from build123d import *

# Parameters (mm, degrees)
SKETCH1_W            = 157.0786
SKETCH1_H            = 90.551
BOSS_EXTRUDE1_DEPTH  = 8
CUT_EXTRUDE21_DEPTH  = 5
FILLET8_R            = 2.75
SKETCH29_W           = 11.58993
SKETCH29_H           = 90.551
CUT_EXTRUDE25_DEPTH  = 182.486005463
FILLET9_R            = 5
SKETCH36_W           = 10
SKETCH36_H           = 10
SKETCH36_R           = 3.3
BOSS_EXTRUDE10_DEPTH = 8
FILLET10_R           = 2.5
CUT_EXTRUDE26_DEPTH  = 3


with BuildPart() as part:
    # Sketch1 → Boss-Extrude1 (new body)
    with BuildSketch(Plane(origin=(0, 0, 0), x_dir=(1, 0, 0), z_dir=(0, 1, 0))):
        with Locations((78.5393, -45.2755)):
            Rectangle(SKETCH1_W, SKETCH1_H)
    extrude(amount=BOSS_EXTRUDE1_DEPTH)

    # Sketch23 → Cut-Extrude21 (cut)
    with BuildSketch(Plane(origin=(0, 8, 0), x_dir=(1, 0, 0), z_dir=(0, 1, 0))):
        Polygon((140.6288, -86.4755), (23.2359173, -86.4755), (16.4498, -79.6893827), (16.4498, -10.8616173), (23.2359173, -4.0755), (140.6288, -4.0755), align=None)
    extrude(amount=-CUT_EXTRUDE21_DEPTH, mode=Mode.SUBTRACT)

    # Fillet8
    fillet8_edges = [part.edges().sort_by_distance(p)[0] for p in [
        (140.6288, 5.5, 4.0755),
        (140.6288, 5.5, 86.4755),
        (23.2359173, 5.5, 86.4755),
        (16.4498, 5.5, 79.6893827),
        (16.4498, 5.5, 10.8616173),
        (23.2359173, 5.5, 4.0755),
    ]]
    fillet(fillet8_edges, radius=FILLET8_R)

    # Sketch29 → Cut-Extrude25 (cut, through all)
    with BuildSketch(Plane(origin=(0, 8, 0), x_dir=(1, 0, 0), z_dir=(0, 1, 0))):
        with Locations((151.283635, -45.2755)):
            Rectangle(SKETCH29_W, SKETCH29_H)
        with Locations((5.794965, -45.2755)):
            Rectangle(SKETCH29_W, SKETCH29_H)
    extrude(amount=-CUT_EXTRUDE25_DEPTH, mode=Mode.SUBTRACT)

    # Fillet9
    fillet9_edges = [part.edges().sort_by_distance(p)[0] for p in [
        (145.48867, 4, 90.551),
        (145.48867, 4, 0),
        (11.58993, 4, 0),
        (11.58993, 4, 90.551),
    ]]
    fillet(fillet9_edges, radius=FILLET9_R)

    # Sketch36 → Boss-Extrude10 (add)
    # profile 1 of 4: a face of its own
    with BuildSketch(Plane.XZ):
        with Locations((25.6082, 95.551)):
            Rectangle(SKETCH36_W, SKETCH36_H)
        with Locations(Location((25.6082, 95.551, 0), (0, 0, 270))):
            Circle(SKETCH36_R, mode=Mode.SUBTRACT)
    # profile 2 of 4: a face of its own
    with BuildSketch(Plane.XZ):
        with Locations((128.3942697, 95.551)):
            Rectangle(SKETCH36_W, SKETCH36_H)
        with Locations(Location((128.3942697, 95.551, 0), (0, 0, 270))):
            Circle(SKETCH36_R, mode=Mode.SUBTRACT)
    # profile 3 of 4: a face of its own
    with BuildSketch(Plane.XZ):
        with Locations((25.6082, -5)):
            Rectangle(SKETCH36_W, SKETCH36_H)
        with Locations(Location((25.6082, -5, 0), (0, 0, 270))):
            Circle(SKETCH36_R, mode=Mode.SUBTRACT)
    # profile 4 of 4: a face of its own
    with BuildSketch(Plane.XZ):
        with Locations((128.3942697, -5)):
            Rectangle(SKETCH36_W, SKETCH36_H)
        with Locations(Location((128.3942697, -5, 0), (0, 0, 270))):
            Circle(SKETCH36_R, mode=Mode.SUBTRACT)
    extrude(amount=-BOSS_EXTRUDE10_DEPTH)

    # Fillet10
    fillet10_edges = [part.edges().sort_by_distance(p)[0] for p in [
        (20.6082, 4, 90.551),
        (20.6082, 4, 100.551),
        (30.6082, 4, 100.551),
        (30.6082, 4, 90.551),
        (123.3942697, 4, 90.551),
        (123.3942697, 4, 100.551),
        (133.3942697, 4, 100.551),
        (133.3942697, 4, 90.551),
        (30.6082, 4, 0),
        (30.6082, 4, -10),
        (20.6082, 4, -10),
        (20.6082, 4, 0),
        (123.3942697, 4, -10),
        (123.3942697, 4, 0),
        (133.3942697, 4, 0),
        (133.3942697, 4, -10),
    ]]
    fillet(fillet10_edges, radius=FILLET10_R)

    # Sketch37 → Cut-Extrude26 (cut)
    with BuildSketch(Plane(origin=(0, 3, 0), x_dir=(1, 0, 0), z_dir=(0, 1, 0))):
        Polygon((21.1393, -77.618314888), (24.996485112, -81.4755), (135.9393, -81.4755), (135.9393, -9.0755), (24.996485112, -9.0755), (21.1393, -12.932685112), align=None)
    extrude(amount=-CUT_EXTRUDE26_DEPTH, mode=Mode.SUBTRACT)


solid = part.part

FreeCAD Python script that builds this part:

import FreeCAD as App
import Part
import Sketcher
from FreeCAD import Vector


def edges_at(feature, points):
    """Names of the edges that pass closest to the given points."""
    edges = feature.Shape.Edges
    near = lambda p: min(range(len(edges)), key=lambda i: edges[i].distToShape(Part.Vertex(*p))[0])
    return sorted({f"Edge{near(p) + 1}" for p in points})


def add_polygon(sketch, points):
    """Adds a closed chain of lines whose ends are joined by coincident constraints."""
    first, n = sketch.GeometryCount, len(points)
    for a, b in zip(points, points[1:] + points[:1]):
        sketch.addGeometry(Part.LineSegment(App.Vector(*a, 0), App.Vector(*b, 0)), False)
    for i in range(n):
        sketch.addConstraint(Sketcher.Constraint("Coincident", first + i, 2, first + (i + 1) % n, 1))

doc = App.newDocument("Part")
params = doc.addObject("Spreadsheet::Sheet", "Params")
for row, (alias, value) in enumerate([
    ("pad1_length", "8 mm"),
    ("sketch2_height", "82.4 mm"),
    ("pocket1_length", "5 mm"),
    ("fillet_radius", "2.75 mm"),
    ("fillet2_radius", "5 mm"),
    ("sketch4_diameter", "6.6 mm"),
    ("sketch4_width", "10 mm"),
    ("pad2_length", "8 mm"),
    ("fillet3_radius", "2.5 mm"),
    ("sketch5_height", "72.4 mm"),
    ("pocket3_length", "3 mm"),
], start=1):
    params.set(f"A{row}", alias)
    params.set(f"B{row}", "=" + value)
    params.setAlias(f"B{row}", alias)

body = doc.addObject("PartDesign::Body", "Body")

sketch1 = body.newObject("Sketcher::SketchObject", "Sketch")
sketch1.AttachmentSupport = (doc.getObject("XZ_Plane"), [""])
sketch1.MapMode = "FlatFace"
add_polygon(sketch1, [(0, 0), (0, 91), (157, 91), (157, 0)])
sketch1.addConstraint([
    Sketcher.Constraint("Vertical", 0),
    Sketcher.Constraint("Horizontal", 1),
    Sketcher.Constraint("Vertical", 2),
    Sketcher.Constraint("Horizontal", 3),
    Sketcher.Constraint("Coincident", 3, 2, -1, 1),
    Sketcher.Constraint("DistanceY", 0, 1, 0, 2, 90.551),
    Sketcher.Constraint("DistanceX", 1, 1, 1, 2, 157.0786),
])
pad1 = body.newObject("PartDesign::Pad", "Pad")
pad1.Profile = sketch1
pad1.setExpression("Length", "Params.pad1_length")
pad1.Reversed = True

sketch2 = body.newObject("Sketcher::SketchObject", "Sketch001")
sketch2.AttachmentSupport = (doc.getObject("XZ_Plane"), [""])
sketch2.MapMode = "FlatFace"
sketch2.AttachmentOffset = App.Placement(Vector(0, 0, -8), App.Rotation())
add_polygon(sketch2, [(23, 86), (141, 86), (141, 4), (23, 4), (16, 11), (16, 80)])
sketch2.addConstraint([
    Sketcher.Constraint("Horizontal", 0),
    Sketcher.Constraint("Vertical", 1),
    Sketcher.Constraint("Horizontal", 2),
    Sketcher.Constraint("Vertical", 4),
    Sketcher.Constraint("Perpendicular", 3, 5),
    Sketcher.Constraint("Vertical", 2, 2, 5, 2),
    Sketcher.Constraint("Equal", 3, 5),
    Sketcher.Constraint("DistanceY", 1, 2, 1, 1, 82.4),
    Sketcher.Constraint("DistanceX", 3, 2, 1, 2, 124.179),
    Sketcher.Constraint("DistanceX", -1, 1, 0, 2, 140.6288),
    Sketcher.Constraint("DistanceY", -1, 1, 0, 2, 86.4755),
    Sketcher.Constraint("Distance", 3, 9.597019),
])
sketch2.setExpression("Constraints[13]", "Params.sketch2_height")
pocket1 = body.newObject("PartDesign::Pocket", "Pocket")
pocket1.Profile = sketch2
pocket1.setExpression("Length", "Params.pocket1_length")
pocket1.Reversed = True
doc.recompute()

fillet = body.newObject("PartDesign::Fillet", "Fillet")
fillet.Base = (pocket1, edges_at(pocket1, [
    (140.629, 5.5, 4.075),
    (140.629, 5.5, 86.475),
    (23.236, 5.5, 86.475),
    (16.45, 5.5, 79.689),
    (16.45, 5.5, 10.862),
    (23.236, 5.5, 4.075),
]))
fillet.setExpression("Radius", "Params.fillet_radius")

sketch3 = body.newObject("Sketcher::SketchObject", "Sketch002")
sketch3.AttachmentSupport = (doc.getObject("XZ_Plane"), [""])
sketch3.MapMode = "FlatFace"
sketch3.AttachmentOffset = App.Placement(Vector(0, 0, -8), App.Rotation())
add_polygon(sketch3, [(145, 0), (145, 91), (157, 91), (157, 0)])
add_polygon(sketch3, [(0, 0), (0, 91), (12, 91), (12, 0)])
sketch3.addConstraint([
    Sketcher.Constraint("Vertical", 0),
    Sketcher.Constraint("Horizontal", 1),
    Sketcher.Constraint("Vertical", 2),
    Sketcher.Constraint("Horizontal", 3),
    Sketcher.Constraint("Vertical", 4),
    Sketcher.Constraint("Horizontal", 5),
    Sketcher.Constraint("Vertical", 6),
    Sketcher.Constraint("Horizontal", 7),
    Sketcher.Constraint("Coincident", 7, 2, -1, 1),
    Sketcher.Constraint("PointOnObject", 2, 2, -1),
    Sketcher.Constraint("Horizontal", 1, 2, 4, 2),
    Sketcher.Constraint("Equal", 3, 5),
    Sketcher.Constraint("DistanceY", 0, 1, 0, 2, 90.551),
    Sketcher.Constraint("DistanceX", 1, 1, 1, 2, 11.58993),
    Sketcher.Constraint("DistanceX", -1, 1, 1, 2, 157.0786),
])
pocket2 = body.newObject("PartDesign::Pocket", "Pocket001")
pocket2.Profile = sketch3
pocket2.Type = "ThroughAll"
pocket2.Reversed = True
doc.recompute()

fillet2 = body.newObject("PartDesign::Fillet", "Fillet001")
fillet2.Base = (pocket2, edges_at(pocket2, [
    (145.489, 4, 90.551),
    (145.489, 4, 0),
    (11.59, 4, 0),
    (11.59, 4, 90.551),
]))
fillet2.setExpression("Radius", "Params.fillet2_radius")

sketch4 = body.newObject("Sketcher::SketchObject", "Sketch003")
sketch4.AttachmentSupport = (doc.getObject("XZ_Plane"), [""])
sketch4.MapMode = "FlatFace"
add_polygon(sketch4, [(20.6, 100.6), (20.6, 90.6), (30.6, 90.6), (30.6, 100.6)])
sketch4.addGeometry(Part.Circle(Vector(25.6, 95.6, 0), Vector(0, 0, 1), 3.3), False)
add_polygon(sketch4, [(123.4, 100.6), (123.4, 90.6), (133.4, 90.6), (133.4, 100.6)])
sketch4.addGeometry(Part.Circle(Vector(128.4, 95.6, 0), Vector(0, 0, 1), 3.3), False)
add_polygon(sketch4, [(20.6, 0), (20.6, -10), (30.6, -10), (30.6, 0)])
sketch4.addGeometry(Part.Circle(Vector(25.6, -5, 0), Vector(0, 0, 1), 3.3), False)
add_polygon(sketch4, [(123.4, 0), (123.4, -10), (133.4, -10), (133.4, 0)])
sketch4.addGeometry(Part.Circle(Vector(128.4, -5, 0), Vector(0, 0, 1), 3.3), False)
sketch4.addConstraint([
    Sketcher.Constraint("Vertical", 0),
    Sketcher.Constraint("Horizontal", 1),
    Sketcher.Constraint("Vertical", 2),
    Sketcher.Constraint("Horizontal", 3),
    Sketcher.Constraint("Vertical", 5),
    Sketcher.Constraint("Horizontal", 6),
    Sketcher.Constraint("Vertical", 7),
    Sketcher.Constraint("Horizontal", 8),
    Sketcher.Constraint("Vertical", 10),
    Sketcher.Constraint("Horizontal", 11),
    Sketcher.Constraint("Vertical", 12),
    Sketcher.Constraint("Horizontal", 13),
    Sketcher.Constraint("Vertical", 15),
    Sketcher.Constraint("Horizontal", 16),
    Sketcher.Constraint("Vertical", 17),
    Sketcher.Constraint("Horizontal", 18),
    Sketcher.Constraint("Equal", 4, 9),
    Sketcher.Constraint("Equal", 9, 14),
    Sketcher.Constraint("Equal", 14, 19),
    Sketcher.Constraint("PointOnObject", 12, 2, -1),
    Sketcher.Constraint("PointOnObject", 17, 2, -1),
    Sketcher.Constraint("Horizontal", 4, 3, 9, 3),
    Sketcher.Constraint("Horizontal", 14, 3, 19, 3),
    Sketcher.Constraint("Horizontal", 1, 2, 5, 2),
    Sketcher.Constraint("Horizontal", 3, 2, 7, 2),
    Sketcher.Constraint("Horizontal", 11, 2, 15, 2),
    Sketcher.Constraint("Vertical", 4, 3, 14, 3),
    Sketcher.Constraint("Vertical", 9, 3, 19, 3),
    Sketcher.Constraint("Vertical", 3, 2, 10, 2),
    Sketcher.Constraint("Vertical", 2, 2, 11, 2),
    Sketcher.Constraint("Vertical", 8, 2, 15, 2),
    Sketcher.Constraint("Vertical", 7, 2, 16, 2),
    Sketcher.Constraint("Equal", 3, 6),
    Sketcher.Constraint("Equal", 18, 0),
    Sketcher.Constraint("Equal", 7, 10),
    Sketcher.Constraint("Diameter", 4, 6.6),
    Sketcher.Constraint("DistanceX", 1, 1, 1, 2, 10.0),
    Sketcher.Constraint("DistanceY", 14, 3, -1, 1, 5.0),
    Sketcher.Constraint("DistanceX", 0, 2, 4, 3, 5.0),
    Sketcher.Constraint("DistanceY", 0, 2, 4, 3, 5.0),
    Sketcher.Constraint("DistanceX", 5, 2, 9, 3, 5.0),
    Sketcher.Constraint("DistanceY", -1, 1, 4, 3, 95.551),
    Sketcher.Constraint("DistanceX", -1, 1, 4, 3, 25.6082),
    Sketcher.Constraint("DistanceX", -1, 1, 9, 3, 128.39427),
])
sketch4.setExpression("Constraints[51]", "Params.sketch4_diameter")
sketch4.setExpression("Constraints[52]", "Params.sketch4_width")
pad2 = body.newObject("PartDesign::Pad", "Pad001")
pad2.Profile = sketch4
pad2.setExpression("Length", "Params.pad2_length")
pad2.Reversed = True
doc.recompute()

fillet3 = body.newObject("PartDesign::Fillet", "Fillet002")
fillet3.Base = (pad2, edges_at(pad2, [
    (20.608, 4, 90.551),
    (20.608, 4, 100.551),
    (30.608, 4, 100.551),
    (30.608, 4, 90.551),
    (123.394, 4, 90.551),
    (123.394, 4, 100.551),
    (133.394, 4, 100.551),
    (133.394, 4, 90.551),
    (30.608, 4, 0),
    (30.608, 4, -10),
    (20.608, 4, -10),
    (20.608, 4, 0),
    (123.394, 4, -10),
    (123.394, 4, 0),
    (133.394, 4, 0),
    (133.394, 4, -10),
]))
fillet3.setExpression("Radius", "Params.fillet3_radius")

sketch5 = body.newObject("Sketcher::SketchObject", "Sketch004")
sketch5.AttachmentSupport = (doc.getObject("XZ_Plane"), [""])
sketch5.MapMode = "FlatFace"
sketch5.AttachmentOffset = App.Placement(Vector(0, 0, -3), App.Rotation())
add_polygon(sketch5, [(21, 78), (25, 81), (136, 81), (136, 9), (25, 9), (21, 13)])
sketch5.addConstraint([
    Sketcher.Constraint("Horizontal", 1),
    Sketcher.Constraint("Vertical", 2),
    Sketcher.Constraint("Horizontal", 3),
    Sketcher.Constraint("Vertical", 5),
    Sketcher.Constraint("Perpendicular", 0, 4),
    Sketcher.Constraint("Vertical", 0, 2, 3, 2),
    Sketcher.Constraint("Equal", 0, 4),
    Sketcher.Constraint("DistanceY", 2, 2, 2, 1, 72.4),
    Sketcher.Constraint("DistanceX", 4, 2, 2, 2, 114.8),
    Sketcher.Constraint("DistanceY", 5, 1, 5, 2, 64.68563),
    Sketcher.Constraint("DistanceY", -1, 1, 0, 2, 81.4755),
    Sketcher.Constraint("DistanceX", -1, 1, 1, 2, 135.9393),
])
sketch5.setExpression("Constraints[13]", "Params.sketch5_height")
pocket3 = body.newObject("PartDesign::Pocket", "Pocket002")
pocket3.Profile = sketch5
pocket3.setExpression("Length", "Params.pocket3_length")
pocket3.Reversed = True

doc.recompute()
